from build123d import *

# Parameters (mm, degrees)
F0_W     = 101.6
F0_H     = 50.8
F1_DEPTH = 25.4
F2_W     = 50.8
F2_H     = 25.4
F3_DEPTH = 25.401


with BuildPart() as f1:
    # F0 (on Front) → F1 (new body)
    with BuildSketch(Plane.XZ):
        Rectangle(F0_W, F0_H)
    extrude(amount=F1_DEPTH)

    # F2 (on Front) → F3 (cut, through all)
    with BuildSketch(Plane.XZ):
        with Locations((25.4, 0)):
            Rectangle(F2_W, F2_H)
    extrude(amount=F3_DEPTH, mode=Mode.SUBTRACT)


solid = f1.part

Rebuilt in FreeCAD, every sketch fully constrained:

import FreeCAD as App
import Part
import Sketcher

V = App.Vector
Q = App.Units.Quantity

doc = App.newDocument("Part")
params = doc.addObject("Spreadsheet::Sheet", "Params")
for row, (alias, value) in enumerate([
    ("sketch1_width", "4 in"),
    ("sketch1_height", "2 in"),
    ("pad1_length", "1 in"),
    ("sketch2_width", "2 in"),
    ("sketch2_height", "1 in"),
], start=1):
    params.set(f"A{row}", alias)
    params.set(f"B{row}", "=" + value)
    params.setAlias(f"B{row}", alias)

body = doc.addObject("PartDesign::Body", "Body")

# Sketch on XZ plane
sketch1 = body.newObject("Sketcher::SketchObject", "Sketch")
sketch1.AttachmentSupport = (doc.getObject("XZ_Plane"), [""])
sketch1.MapMode = "FlatFace"
sketch1.addGeometry([
    Part.LineSegment(V(-50.8, 25.4, 0), V(-50.8, -25.4, 0)),
    Part.LineSegment(V(-50.8, -25.4, 0), V(50.8, -25.4, 0)),
    Part.LineSegment(V(50.8, -25.4, 0), V(50.8, 25.4, 0)),
    Part.LineSegment(V(50.8, 25.4, 0), V(-50.8, 25.4, 0)),
], False)
sketch1.addConstraint([
    Sketcher.Constraint("Coincident", 0, 2, 1, 1),
    Sketcher.Constraint("Coincident", 1, 2, 2, 1),
    Sketcher.Constraint("Coincident", 2, 2, 3, 1),
    Sketcher.Constraint("Coincident", 3, 2, 0, 1),
    Sketcher.Constraint("Vertical", 0),
    Sketcher.Constraint("Horizontal", 1),
    Sketcher.Constraint("Vertical", 2),
    Sketcher.Constraint("Horizontal", 3),
    Sketcher.Constraint("Symmetric", 0, 2, 2, 2, -1, 1),
    Sketcher.Constraint("DistanceX", 1, 1, 1, 2, Q("4 in")),
    Sketcher.Constraint("DistanceY", 0, 2, 0, 1, Q("2 in")),
])
sketch1.setExpression("Constraints[9]", "Params.sketch1_width")
sketch1.setExpression("Constraints[10]", "Params.sketch1_height")
pad1 = body.newObject("PartDesign::Pad", "Pad")
pad1.Profile = sketch1
pad1.setExpression("Length", "Params.pad1_length")

# Sketch on XZ plane
sketch2 = body.newObject("Sketcher::SketchObject", "Sketch001")
sketch2.AttachmentSupport = (doc.getObject("XZ_Plane"), [""])
sketch2.MapMode = "FlatFace"
sketch2.addGeometry([
    Part.LineSegment(V(0, 12.7, 0), V(0, -12.7, 0)),
    Part.LineSegment(V(0, -12.7, 0), V(50.8, -12.7, 0)),
    Part.LineSegment(V(50.8, -12.7, 0), V(50.8, 12.7, 0)),
    Part.LineSegment(V(50.8, 12.7, 0), V(0, 12.7, 0)),
], False)
sketch2.addConstraint([
    Sketcher.Constraint("Coincident", 0, 2, 1, 1),
    Sketcher.Constraint("Coincident", 1, 2, 2, 1),
    Sketcher.Constraint("Coincident", 2, 2, 3, 1),
    Sketcher.Constraint("Coincident", 3, 2, 0, 1),
    Sketcher.Constraint("Vertical", 0),
    Sketcher.Constraint("Horizontal", 1),
    Sketcher.Constraint("Vertical", 2),
    Sketcher.Constraint("Horizontal", 3),
    Sketcher.Constraint("Symmetric", 0, 2, 3, 2, -1, 1),
    Sketcher.Constraint("DistanceX", 1, 1, 1, 2, Q("2 in")),
    Sketcher.Constraint("DistanceY", 0, 2, 0, 1, Q("1 in")),
])
sketch2.setExpression("Constraints[9]", "Params.sketch2_width")
sketch2.setExpression("Constraints[10]", "Params.sketch2_height")
pocket1 = body.newObject("PartDesign::Pocket", "Pocket")
pocket1.Profile = sketch2
pocket1.Type = "ThroughAll"
pocket1.Reversed = True

doc.recompute()
